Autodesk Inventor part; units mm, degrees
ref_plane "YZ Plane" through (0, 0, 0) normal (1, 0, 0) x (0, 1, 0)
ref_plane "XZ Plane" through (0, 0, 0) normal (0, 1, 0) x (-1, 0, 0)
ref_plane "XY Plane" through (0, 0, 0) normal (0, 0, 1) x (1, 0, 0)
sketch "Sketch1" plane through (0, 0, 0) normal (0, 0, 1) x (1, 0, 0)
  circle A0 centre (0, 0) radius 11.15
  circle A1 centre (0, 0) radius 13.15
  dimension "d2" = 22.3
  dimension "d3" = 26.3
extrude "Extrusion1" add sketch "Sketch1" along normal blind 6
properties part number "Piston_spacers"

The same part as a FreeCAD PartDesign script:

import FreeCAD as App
import Part
import Sketcher
from FreeCAD import Vector

doc = App.newDocument("Part")
body = doc.addObject("PartDesign::Body", "Body")

# Sketch on XY plane
sketch1 = body.newObject("Sketcher::SketchObject", "Sketch")
sketch1.AttachmentSupport = (doc.getObject("XY_Plane"), [""])
sketch1.MapMode = "FlatFace"
sketch1.addGeometry(Part.Circle(Vector(0, 0, 0), Vector(0, 0, 1), 13.15), False)
sketch1.addGeometry(Part.Circle(Vector(0, 0, 0), Vector(0, 0, 1), 11.15), False)
sketch1.addConstraint(Sketcher.Constraint("Coincident", 0, 3, -1, 1))
sketch1.addConstraint(Sketcher.Constraint("Coincident", 1, 3, -1, 1))
sketch1.addConstraint(Sketcher.Constraint("Diameter", 0, 26.3))
sketch1.addConstraint(Sketcher.Constraint("Diameter", 1, 22.3))
pad1 = body.newObject("PartDesign::Pad", "Pad")
pad1.Profile = sketch1
pad1.Length = 6

doc.recompute()
